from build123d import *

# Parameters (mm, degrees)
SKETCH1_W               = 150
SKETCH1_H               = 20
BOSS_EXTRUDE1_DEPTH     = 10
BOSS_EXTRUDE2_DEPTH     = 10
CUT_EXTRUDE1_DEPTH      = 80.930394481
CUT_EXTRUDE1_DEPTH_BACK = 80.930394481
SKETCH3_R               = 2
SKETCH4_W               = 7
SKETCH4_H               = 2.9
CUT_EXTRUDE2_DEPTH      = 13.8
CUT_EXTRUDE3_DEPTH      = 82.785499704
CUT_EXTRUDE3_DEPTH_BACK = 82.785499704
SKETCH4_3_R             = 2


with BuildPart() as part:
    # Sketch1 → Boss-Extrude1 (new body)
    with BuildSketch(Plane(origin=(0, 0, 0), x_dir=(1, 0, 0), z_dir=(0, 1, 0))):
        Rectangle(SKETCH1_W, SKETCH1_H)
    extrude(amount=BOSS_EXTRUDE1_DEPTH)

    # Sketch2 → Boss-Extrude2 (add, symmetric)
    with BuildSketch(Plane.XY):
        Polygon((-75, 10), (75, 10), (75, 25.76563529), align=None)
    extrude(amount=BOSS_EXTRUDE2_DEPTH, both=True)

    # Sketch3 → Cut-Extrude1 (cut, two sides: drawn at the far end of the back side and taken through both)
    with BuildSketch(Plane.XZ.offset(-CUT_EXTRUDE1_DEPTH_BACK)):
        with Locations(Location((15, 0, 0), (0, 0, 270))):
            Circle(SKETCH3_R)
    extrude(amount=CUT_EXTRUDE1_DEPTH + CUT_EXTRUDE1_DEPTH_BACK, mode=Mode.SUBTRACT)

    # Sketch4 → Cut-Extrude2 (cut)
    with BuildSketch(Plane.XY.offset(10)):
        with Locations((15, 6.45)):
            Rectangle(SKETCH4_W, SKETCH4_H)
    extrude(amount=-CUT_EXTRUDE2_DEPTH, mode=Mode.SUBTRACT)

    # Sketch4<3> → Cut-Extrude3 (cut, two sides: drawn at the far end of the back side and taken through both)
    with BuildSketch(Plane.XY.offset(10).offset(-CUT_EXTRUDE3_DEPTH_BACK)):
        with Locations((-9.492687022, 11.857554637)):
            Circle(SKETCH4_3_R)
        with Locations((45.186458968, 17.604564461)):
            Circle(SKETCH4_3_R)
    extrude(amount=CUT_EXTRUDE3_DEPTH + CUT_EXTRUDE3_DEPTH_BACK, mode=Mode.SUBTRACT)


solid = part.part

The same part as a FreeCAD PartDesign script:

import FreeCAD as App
import Part
import Sketcher

V = App.Vector
Q = App.Units.Quantity


def add_polygon(sketch, points):
    """Adds a closed chain of lines whose ends are joined by coincident constraints."""
    first, n = sketch.GeometryCount, len(points)
    for a, b in zip(points, points[1:] + points[:1]):
        sketch.addGeometry(Part.LineSegment(App.Vector(*a, 0), App.Vector(*b, 0)), False)
    for i in range(n):
        sketch.addConstraint(Sketcher.Constraint("Coincident", first + i, 2, first + (i + 1) % n, 1))

doc = App.newDocument("Part")
body = doc.addObject("PartDesign::Body", "Body")

sketch1 = body.newObject("Sketcher::SketchObject", "Sketch")
sketch1.AttachmentSupport = (doc.getObject("XZ_Plane"), [""])
sketch1.MapMode = "FlatFace"
add_polygon(sketch1, [(-75, -10), (-75, 10), (75, 10), (75, -10)])
sketch1.addConstraint([
    Sketcher.Constraint("Vertical", 0),
    Sketcher.Constraint("Horizontal", 1),
    Sketcher.Constraint("Vertical", 2),
    Sketcher.Constraint("Horizontal", 3),
    Sketcher.Constraint("Symmetric", 0, 2, 2, 2, -1, 1),
    Sketcher.Constraint("DistanceX", 1, 1, 1, 2, 150.0),
    Sketcher.Constraint("DistanceY", 0, 1, 0, 2, 20.0),
])
pad1 = body.newObject("PartDesign::Pad", "Pad")
pad1.Profile = sketch1
pad1.Length = 10
pad1.Reversed = True

sketch2 = body.newObject("Sketcher::SketchObject", "Sketch001")
sketch2.AttachmentSupport = (doc.getObject("XY_Plane"), [""])
sketch2.MapMode = "FlatFace"
add_polygon(sketch2, [(-75, 10), (75, 10), (75, 26)])
sketch2.addConstraint([
    Sketcher.Constraint("Horizontal", 0),
    Sketcher.Constraint("Vertical", 1),
    Sketcher.Constraint("DistanceX", 0, 1, 0, 2, 150.0),
    Sketcher.Constraint("Angle", 2, Q("-174 deg")),
    Sketcher.Constraint("DistanceX", -1, 1, 0, 2, 75.0),
    Sketcher.Constraint("DistanceY", -1, 1, 0, 2, 10.0),
])
pad2 = body.newObject("PartDesign::Pad", "Pad001")
pad2.Profile = sketch2
pad2.Length = 20
pad2.Midplane = True

sketch3 = body.newObject("Sketcher::SketchObject", "Sketch002")
sketch3.AttachmentSupport = (doc.getObject("XZ_Plane"), [""])
sketch3.MapMode = "FlatFace"
sketch3.addGeometry(Part.Circle(V(15, 0, 0), V(0, 0, 1), 2), False)
sketch3.addConstraint([
    Sketcher.Constraint("PointOnObject", 0, 3, -1),
    Sketcher.Constraint("Diameter", 0, 4.0),
    Sketcher.Constraint("DistanceX", -1, 1, 0, 3, 15.0),
])
pocket1 = body.newObject("PartDesign::Pocket", "Pocket")
pocket1.Profile = sketch3
pocket1.Type = "ThroughAll"
pocket1.Midplane = True

sketch4 = body.newObject("Sketcher::SketchObject", "Sketch003")
sketch4.AttachmentSupport = (doc.getObject("XY_Plane"), [""])
sketch4.MapMode = "FlatFace"
sketch4.AttachmentOffset = App.Placement(V(0, 0, 10), App.Rotation())
add_polygon(sketch4, [(11.5, 7.9), (11.5, 5), (18.5, 5), (18.5, 7.9)])
sketch4.addConstraint([
    Sketcher.Constraint("Vertical", 0),
    Sketcher.Constraint("Horizontal", 1),
    Sketcher.Constraint("Vertical", 2),
    Sketcher.Constraint("Horizontal", 3),
    Sketcher.Constraint("DistanceX", 1, 1, 1, 2, 7.0),
    Sketcher.Constraint("DistanceY", 0, 2, 0, 1, 2.9),
    Sketcher.Constraint("DistanceY", -1, 1, 0, 2, 5.0),
    Sketcher.Constraint("DistanceX", -1, 1, 0, 2, 11.5),
])
pocket2 = body.newObject("PartDesign::Pocket", "Pocket001")
pocket2.Profile = sketch4
pocket2.Length = 13.8

sketch5 = body.newObject("Sketcher::SketchObject", "Sketch004")
sketch5.AttachmentSupport = (doc.getObject("XY_Plane"), [""])
sketch5.MapMode = "FlatFace"
sketch5.AttachmentOffset = App.Placement(V(0, 0, 10), App.Rotation())
sketch5.addGeometry([
    Part.Circle(V(-9.5, 11.9, 0), V(0, 0, 1), 2),
    Part.Circle(V(45.2, 17.6, 0), V(0, 0, 1), 2),
], False)
sketch5.addConstraint([
    Sketcher.Constraint("Equal", 0, 1),
    Sketcher.Constraint("Diameter", 0, 4.0),
    Sketcher.Constraint("DistanceX", -1, 1, 1, 3, 45.186459),
    Sketcher.Constraint("DistanceY", 0, 3, 1, 3, 5.74701),
    Sketcher.Constraint("DistanceX", 0, 3, -1, 1, 9.492687),
    Sketcher.Constraint("DistanceY", -1, 1, 0, 3, 11.857555),
])
pocket3 = body.newObject("PartDesign::Pocket", "Pocket002")
pocket3.Profile = sketch5
pocket3.Type = "ThroughAll"
pocket3.Midplane = True

doc.recompute()
